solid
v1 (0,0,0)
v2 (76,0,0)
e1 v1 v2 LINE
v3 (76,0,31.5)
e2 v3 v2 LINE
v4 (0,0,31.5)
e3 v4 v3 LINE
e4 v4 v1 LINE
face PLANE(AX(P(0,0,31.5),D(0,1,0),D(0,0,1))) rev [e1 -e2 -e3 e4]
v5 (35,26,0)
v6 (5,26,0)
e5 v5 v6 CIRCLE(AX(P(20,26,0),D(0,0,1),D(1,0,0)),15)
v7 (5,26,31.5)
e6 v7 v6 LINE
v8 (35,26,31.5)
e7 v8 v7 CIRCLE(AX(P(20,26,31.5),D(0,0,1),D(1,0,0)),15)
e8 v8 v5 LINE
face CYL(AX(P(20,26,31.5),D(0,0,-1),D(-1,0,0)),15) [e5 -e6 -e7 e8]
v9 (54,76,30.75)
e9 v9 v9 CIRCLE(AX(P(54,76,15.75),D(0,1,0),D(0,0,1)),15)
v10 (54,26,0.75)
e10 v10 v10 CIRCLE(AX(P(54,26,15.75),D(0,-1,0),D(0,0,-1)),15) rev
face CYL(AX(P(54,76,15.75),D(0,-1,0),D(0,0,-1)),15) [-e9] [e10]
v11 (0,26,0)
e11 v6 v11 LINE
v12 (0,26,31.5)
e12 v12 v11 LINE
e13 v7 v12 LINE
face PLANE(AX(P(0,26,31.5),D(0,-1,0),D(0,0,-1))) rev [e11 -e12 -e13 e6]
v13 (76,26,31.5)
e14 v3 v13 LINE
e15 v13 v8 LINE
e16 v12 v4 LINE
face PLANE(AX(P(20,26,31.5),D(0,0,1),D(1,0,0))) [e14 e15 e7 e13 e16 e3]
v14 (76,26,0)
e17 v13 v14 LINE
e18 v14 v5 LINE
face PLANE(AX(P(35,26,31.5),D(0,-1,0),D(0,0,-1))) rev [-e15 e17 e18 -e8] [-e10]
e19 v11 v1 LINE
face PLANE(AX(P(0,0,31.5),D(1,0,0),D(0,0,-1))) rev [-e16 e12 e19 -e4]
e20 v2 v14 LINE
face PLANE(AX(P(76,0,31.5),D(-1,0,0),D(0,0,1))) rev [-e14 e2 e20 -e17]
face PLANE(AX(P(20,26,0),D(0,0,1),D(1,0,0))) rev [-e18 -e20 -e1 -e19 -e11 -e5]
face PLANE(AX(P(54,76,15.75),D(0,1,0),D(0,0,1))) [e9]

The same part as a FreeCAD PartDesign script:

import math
import FreeCAD as App
import Part
import Sketcher
from FreeCAD import Vector

doc = App.newDocument("Part")
body = doc.addObject("PartDesign::Body", "Body")

# Sketch on XY plane
sketch1 = body.newObject("Sketcher::SketchObject", "Sketch")
sketch1.AttachmentSupport = (doc.getObject("XY_Plane"), [""])
sketch1.MapMode = "FlatFace"
sketch1.addGeometry(Part.LineSegment(Vector(76, 26, 0), Vector(35, 26, 0)), False)
sketch1.addGeometry(Part.ArcOfCircle(Part.Circle(Vector(20, 26, 0), Vector(0, 0, 1), 15), math.radians(0), math.radians(180)), False)
sketch1.addGeometry(Part.LineSegment(Vector(5, 26, 0), Vector(0, 26, 0)), False)
sketch1.addGeometry(Part.LineSegment(Vector(0, 26, 0), Vector(0, 0, 0)), False)
sketch1.addGeometry(Part.LineSegment(Vector(0, 0, 0), Vector(76, 0, 0)), False)
sketch1.addGeometry(Part.LineSegment(Vector(76, 0, 0), Vector(76, 26, 0)), False)
sketch1.addConstraint(Sketcher.Constraint("Coincident", 0, 2, 1, 1))
sketch1.addConstraint(Sketcher.Constraint("Coincident", 1, 2, 2, 1))
sketch1.addConstraint(Sketcher.Constraint("Coincident", 2, 2, 3, 1))
sketch1.addConstraint(Sketcher.Constraint("Coincident", 3, 2, 4, 1))
sketch1.addConstraint(Sketcher.Constraint("Coincident", 4, 2, 5, 1))
sketch1.addConstraint(Sketcher.Constraint("Coincident", 5, 2, 0, 1))
sketch1.addConstraint(Sketcher.Constraint("Horizontal", 0))
sketch1.addConstraint(Sketcher.Constraint("Horizontal", 2))
sketch1.addConstraint(Sketcher.Constraint("Vertical", 3))
sketch1.addConstraint(Sketcher.Constraint("Horizontal", 4))
sketch1.addConstraint(Sketcher.Constraint("Vertical", 5))
sketch1.addConstraint(Sketcher.Constraint("Coincident", 3, 2, -1, 1))
sketch1.addConstraint(Sketcher.Constraint("Horizontal", 1, 3, 0, 2))
sketch1.addConstraint(Sketcher.Constraint("Horizontal", 0, 2, 1, 2))
sketch1.addConstraint(Sketcher.Constraint("Radius", 1, 15.0))
sketch1.addConstraint(Sketcher.Constraint("DistanceX", 0, 2, 0, 1, 41.0))
sketch1.addConstraint(Sketcher.Constraint("DistanceX", 2, 2, 2, 1, 5.0))
sketch1.addConstraint(Sketcher.Constraint("DistanceY", 3, 2, 3, 1, 26.0))
pad1 = body.newObject("PartDesign::Pad", "Pad")
pad1.Profile = sketch1
pad1.Length = 31.5

# Sketch on XZ plane
sketch2 = body.newObject("Sketcher::SketchObject", "Sketch001")
sketch2.AttachmentSupport = (doc.getObject("XZ_Plane"), [""])
sketch2.MapMode = "FlatFace"
sketch2.AttachmentOffset = App.Placement(Vector(0, 0, -26), App.Rotation())
sketch2.addGeometry(Part.Circle(Vector(54, 16, 0), Vector(0, 0, 1), 15), False)
sketch2.addConstraint(Sketcher.Constraint("Diameter", 0, 30.0))
sketch2.addConstraint(Sketcher.Constraint("DistanceX", -1, 1, 0, 3, 54.0))
sketch2.addConstraint(Sketcher.Constraint("DistanceY", -1, 1, 0, 3, 15.75))
pad2 = body.newObject("PartDesign::Pad", "Pad001")
pad2.Profile = sketch2
pad2.Length = 50
pad2.Reversed = True

doc.recompute()
